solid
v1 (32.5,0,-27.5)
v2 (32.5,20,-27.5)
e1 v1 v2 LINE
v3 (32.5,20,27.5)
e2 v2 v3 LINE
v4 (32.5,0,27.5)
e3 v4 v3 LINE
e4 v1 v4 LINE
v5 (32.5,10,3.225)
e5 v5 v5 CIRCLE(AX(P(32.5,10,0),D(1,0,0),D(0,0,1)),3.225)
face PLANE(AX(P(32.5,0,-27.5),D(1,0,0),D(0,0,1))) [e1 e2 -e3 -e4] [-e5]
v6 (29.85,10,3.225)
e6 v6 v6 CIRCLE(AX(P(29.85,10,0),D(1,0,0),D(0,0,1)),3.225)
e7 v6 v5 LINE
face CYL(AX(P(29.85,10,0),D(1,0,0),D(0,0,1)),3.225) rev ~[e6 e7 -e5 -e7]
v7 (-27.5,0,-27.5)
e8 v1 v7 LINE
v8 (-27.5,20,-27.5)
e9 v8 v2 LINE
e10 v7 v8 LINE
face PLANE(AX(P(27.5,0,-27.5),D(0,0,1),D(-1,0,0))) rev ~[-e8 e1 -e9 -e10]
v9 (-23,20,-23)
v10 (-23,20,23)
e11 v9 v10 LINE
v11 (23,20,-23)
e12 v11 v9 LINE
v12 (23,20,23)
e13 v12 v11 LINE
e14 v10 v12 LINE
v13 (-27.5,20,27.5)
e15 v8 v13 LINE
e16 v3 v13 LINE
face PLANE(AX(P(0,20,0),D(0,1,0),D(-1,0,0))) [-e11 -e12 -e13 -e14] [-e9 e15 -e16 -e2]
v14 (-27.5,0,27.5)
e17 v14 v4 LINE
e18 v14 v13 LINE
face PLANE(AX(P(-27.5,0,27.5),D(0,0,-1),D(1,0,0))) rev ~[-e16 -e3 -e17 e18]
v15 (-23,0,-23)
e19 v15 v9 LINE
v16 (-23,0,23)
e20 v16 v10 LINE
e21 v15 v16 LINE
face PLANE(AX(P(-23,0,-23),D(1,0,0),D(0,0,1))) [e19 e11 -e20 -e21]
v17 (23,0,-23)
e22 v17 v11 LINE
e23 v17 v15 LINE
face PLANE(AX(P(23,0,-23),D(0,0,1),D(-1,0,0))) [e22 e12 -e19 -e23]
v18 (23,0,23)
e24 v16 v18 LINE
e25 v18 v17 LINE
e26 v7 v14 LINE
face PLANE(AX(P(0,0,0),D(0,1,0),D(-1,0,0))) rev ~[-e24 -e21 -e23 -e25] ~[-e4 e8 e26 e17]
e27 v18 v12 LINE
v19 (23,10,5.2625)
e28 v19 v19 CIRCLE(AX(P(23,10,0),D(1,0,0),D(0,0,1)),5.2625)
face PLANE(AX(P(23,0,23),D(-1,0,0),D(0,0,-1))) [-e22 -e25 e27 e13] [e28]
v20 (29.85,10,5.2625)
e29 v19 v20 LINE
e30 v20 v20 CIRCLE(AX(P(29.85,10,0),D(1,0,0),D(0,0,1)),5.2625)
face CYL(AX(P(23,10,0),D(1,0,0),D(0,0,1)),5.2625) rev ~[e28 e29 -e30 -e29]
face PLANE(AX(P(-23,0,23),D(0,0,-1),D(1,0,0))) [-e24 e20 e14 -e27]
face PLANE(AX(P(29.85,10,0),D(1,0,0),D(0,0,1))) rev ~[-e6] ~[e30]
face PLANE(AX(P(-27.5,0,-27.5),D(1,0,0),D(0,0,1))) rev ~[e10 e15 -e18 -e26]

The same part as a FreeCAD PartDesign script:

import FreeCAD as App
import Part
import Sketcher

V = App.Vector
Q = App.Units.Quantity


def add_polygon(sketch, points):
    """Adds a closed chain of lines whose ends are joined by coincident constraints."""
    first, n = sketch.GeometryCount, len(points)
    for a, b in zip(points, points[1:] + points[:1]):
        sketch.addGeometry(Part.LineSegment(App.Vector(*a, 0), App.Vector(*b, 0)), False)
    for i in range(n):
        sketch.addConstraint(Sketcher.Constraint("Coincident", first + i, 2, first + (i + 1) % n, 1))

doc = App.newDocument("Part")
body = doc.addObject("PartDesign::Body", "Body")

sketch1 = body.newObject("Sketcher::SketchObject", "Sketch")
sketch1.AttachmentSupport = (doc.getObject("XZ_Plane"), [""])
sketch1.MapMode = "FlatFace"
add_polygon(sketch1, [(-28, -28), (-28, 28), (32, 28), (32, -28)])
add_polygon(sketch1, [(23, 23), (-23, 23), (-23, -23), (23, -23)])
sketch1.addConstraint([
    Sketcher.Constraint("Vertical", 0),
    Sketcher.Constraint("Horizontal", 1),
    Sketcher.Constraint("Vertical", 2),
    Sketcher.Constraint("Horizontal", 3),
    Sketcher.Constraint("Horizontal", 4),
    Sketcher.Constraint("Vertical", 5),
    Sketcher.Constraint("Horizontal", 6),
    Sketcher.Constraint("Vertical", 7),
    Sketcher.Constraint("Symmetric", 4, 2, 6, 2, -1, 1),
    Sketcher.Constraint("Equal", 6, 5),
    Sketcher.Constraint("DistanceX", 1, 1, 1, 2, Q("60 mm")),
    Sketcher.Constraint("DistanceX", 4, 2, 4, 1, Q("46 mm")),
    Sketcher.Constraint("DistanceY", 0, 1, 0, 2, Q("55 mm")),
    Sketcher.Constraint("DistanceX", 0, 2, -1, 1, Q("27.5 mm")),
    Sketcher.Constraint("DistanceY", -1, 1, 0, 2, Q("27.5 mm")),
])
pad1 = body.newObject("PartDesign::Pad", "Pad")
pad1.Profile = sketch1
pad1.Length = 20
pad1.Reversed = True

sketch2 = body.newObject("Sketcher::SketchObject", "Sketch001")
sketch2.AttachmentSupport = (doc.getObject("YZ_Plane"), [""])
sketch2.MapMode = "FlatFace"
sketch2.AttachmentOffset = App.Placement(V(0, 0, 23), App.Rotation())
sketch2.addGeometry(Part.Circle(V(10, 0, 0), V(0, 0, 1), 3.2), False)
sketch2.addConstraint([
    Sketcher.Constraint("PointOnObject", 0, 3, -1),
    Sketcher.Constraint("Diameter", 0, Q("6.45 mm")),
    Sketcher.Constraint("DistanceX", -1, 1, 0, 3, Q("10 mm")),
])
doc.recompute()
hole = body.newObject("PartDesign::Hole", "Hole")
hole.Profile = sketch2
hole.ThreadType = "None"
hole.Diameter = 6.45
hole.DepthType = "ThroughAll"
hole.HoleCutType = "Counterbore"
hole.HoleCutDiameter = 10.525
hole.HoleCutDepth = 6.85
hole.Reversed = True

doc.recompute()
